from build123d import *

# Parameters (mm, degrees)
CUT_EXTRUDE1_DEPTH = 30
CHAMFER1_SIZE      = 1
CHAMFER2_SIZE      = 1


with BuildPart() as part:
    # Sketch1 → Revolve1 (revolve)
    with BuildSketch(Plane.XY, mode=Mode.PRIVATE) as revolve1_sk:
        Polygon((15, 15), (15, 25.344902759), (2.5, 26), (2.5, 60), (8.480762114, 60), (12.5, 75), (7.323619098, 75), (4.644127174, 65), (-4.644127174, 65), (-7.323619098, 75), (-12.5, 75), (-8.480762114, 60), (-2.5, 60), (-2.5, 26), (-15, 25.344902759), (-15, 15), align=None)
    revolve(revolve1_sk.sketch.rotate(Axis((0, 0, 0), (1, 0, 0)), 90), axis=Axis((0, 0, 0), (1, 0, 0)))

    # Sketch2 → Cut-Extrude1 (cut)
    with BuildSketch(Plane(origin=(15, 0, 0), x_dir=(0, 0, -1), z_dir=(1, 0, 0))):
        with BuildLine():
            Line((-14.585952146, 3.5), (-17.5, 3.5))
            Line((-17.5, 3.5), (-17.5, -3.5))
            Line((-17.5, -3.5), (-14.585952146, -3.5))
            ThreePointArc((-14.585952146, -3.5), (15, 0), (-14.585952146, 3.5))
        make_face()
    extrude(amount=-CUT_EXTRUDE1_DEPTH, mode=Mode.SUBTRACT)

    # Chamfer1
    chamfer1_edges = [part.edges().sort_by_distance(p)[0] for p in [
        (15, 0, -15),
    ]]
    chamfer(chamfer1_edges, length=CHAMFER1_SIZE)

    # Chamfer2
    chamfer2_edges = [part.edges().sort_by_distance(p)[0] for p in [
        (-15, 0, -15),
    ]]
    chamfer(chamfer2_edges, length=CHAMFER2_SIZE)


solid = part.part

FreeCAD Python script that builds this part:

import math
import FreeCAD as App
import Part
import Sketcher
from FreeCAD import Vector
Q = App.Units.Quantity


def edges_at(feature, points):
    """Names of the edges that pass closest to the given points."""
    edges = feature.Shape.Edges
    near = lambda p: min(range(len(edges)), key=lambda i: edges[i].distToShape(Part.Vertex(*p))[0])
    return sorted({f"Edge{near(p) + 1}" for p in points})


def add_polygon(sketch, points):
    """Adds a closed chain of lines whose ends are joined by coincident constraints."""
    first, n = sketch.GeometryCount, len(points)
    for a, b in zip(points, points[1:] + points[:1]):
        sketch.addGeometry(Part.LineSegment(App.Vector(*a, 0), App.Vector(*b, 0)), False)
    for i in range(n):
        sketch.addConstraint(Sketcher.Constraint("Coincident", first + i, 2, first + (i + 1) % n, 1))

doc = App.newDocument("Part")
params = doc.addObject("Spreadsheet::Sheet", "Params")
for row, (alias, value) in enumerate([
    ("sketch1_width", "30 mm"),
    ("sketch1_height", "34 mm"),
    ("revolution_angle", "360 deg"),
    ("sketch2_radius", "15 mm"),
    ("sketch2_width", "7 mm"),
    ("pocket1_length", "30 mm"),
    ("chamfer_size", "1 mm"),
    ("chamfer2_size", "1 mm"),
], start=1):
    params.set(f"A{row}", alias)
    params.set(f"B{row}", "=" + value)
    params.setAlias(f"B{row}", alias)

body = doc.addObject("PartDesign::Body", "Body")

# Sketch on XY plane
sketch1 = body.newObject("Sketcher::SketchObject", "Sketch")
sketch1.AttachmentSupport = (doc.getObject("XY_Plane"), [""])
sketch1.MapMode = "FlatFace"
add_polygon(sketch1, [(15, 15), (15, 25), (2, 26), (2, 60), (8, 60), (12, 75), (7, 75), (5, 65), (-5, 65), (-7, 75), (-12, 75), (-8, 60), (-2, 60), (-2, 26), (-15, 25), (-15, 15)])  # lines 0-15
sketch1.addConstraint(Sketcher.Constraint("Vertical", 0))
sketch1.addConstraint(Sketcher.Constraint("Vertical", 2))
sketch1.addConstraint(Sketcher.Constraint("Horizontal", 3))
sketch1.addConstraint(Sketcher.Constraint("Horizontal", 5))
sketch1.addConstraint(Sketcher.Constraint("Horizontal", 7))
sketch1.addConstraint(Sketcher.Constraint("Horizontal", 9))
sketch1.addConstraint(Sketcher.Constraint("Horizontal", 11))
sketch1.addConstraint(Sketcher.Constraint("Vertical", 12))
sketch1.addConstraint(Sketcher.Constraint("Vertical", 14))
sketch1.addConstraint(Sketcher.Constraint("Horizontal", 15))
sketch1.addConstraint(Sketcher.Constraint("Symmetric", 5, 2, 8, 2, -2))
sketch1.addConstraint(Sketcher.Constraint("Symmetric", 3, 2, 10, 2, -2))
sketch1.addConstraint(Sketcher.Constraint("Symmetric", 1, 2, 12, 2, -2))
sketch1.addConstraint(Sketcher.Constraint("Symmetric", 0, 2, 13, 2, -2))
sketch1.addConstraint(Sketcher.Constraint("Parallel", 4, 6))
sketch1.addConstraint(Sketcher.Constraint("Parallel", 8, 10))
sketch1.addConstraint(Sketcher.Constraint("Equal", 5, 9))
sketch1.addConstraint(Sketcher.Constraint("DistanceX", 15, 1, 15, 2, Q("30 mm")))
sketch1.addConstraint(Sketcher.Constraint("DistanceY", 2, 1, 2, 2, Q("34 mm")))
sketch1.addConstraint(Sketcher.Constraint("Angle", 1, Q("177 deg")))
sketch1.addConstraint(Sketcher.Constraint("Angle", 4, Q("75 deg")))
sketch1.addConstraint(Sketcher.Constraint("DistanceY", -1, 1, 1, 2, Q("26 mm")))
sketch1.addConstraint(Sketcher.Constraint("DistanceY", -1, 1, 4, 2, Q("75 mm")))
sketch1.addConstraint(Sketcher.Constraint("DistanceY", -1, 1, 6, 2, Q("65 mm")))
sketch1.addConstraint(Sketcher.Constraint("DistanceY", -1, 1, 14, 2, Q("15 mm")))
sketch1.addConstraint(Sketcher.Constraint("DistanceX", 2, 2, 4, 2, Q("10 mm")))
sketch1.addConstraint(Sketcher.Constraint("DistanceX", 9, 2, 2, 2, Q("15 mm")))
sketch1.addConstraint(Sketcher.Constraint("DistanceX", 5, 2, 5, 1, Q("5.176381 mm")))
sketch1.setExpression("Constraints[33]", "Params.sketch1_width")
sketch1.setExpression("Constraints[34]", "Params.sketch1_height")
revolution = body.newObject("PartDesign::Revolution", "Revolution")
revolution.Profile = sketch1
revolution.ReferenceAxis = (sketch1, ["H_Axis"])
revolution.setExpression("Angle", "Params.revolution_angle")

# Sketch on YZ plane
sketch2 = body.newObject("Sketcher::SketchObject", "Sketch001")
sketch2.AttachmentSupport = (doc.getObject("YZ_Plane"), [""])
sketch2.MapMode = "FlatFace"
sketch2.AttachmentOffset = App.Placement(Vector(0, 0, 15), App.Rotation())
sketch2.addGeometry(Part.LineSegment(Vector(3.5, 14.6, 0), Vector(3.5, 17.5, 0)), False)
sketch2.addGeometry(Part.LineSegment(Vector(3.5, 17.5, 0), Vector(-3.5, 17.5, 0)), False)
sketch2.addGeometry(Part.LineSegment(Vector(-3.5, 17.5, 0), Vector(-3.5, 14.6, 0)), False)
sketch2.addGeometry(Part.ArcOfCircle(Part.Circle(Vector(0, 0, 0), Vector(0, 0, 1), 15), math.radians(103), math.radians(437)), False)
sketch2.addConstraint(Sketcher.Constraint("Coincident", 0, 2, 1, 1))
sketch2.addConstraint(Sketcher.Constraint("Coincident", 1, 2, 2, 1))
sketch2.addConstraint(Sketcher.Constraint("Coincident", 2, 2, 3, 1))
sketch2.addConstraint(Sketcher.Constraint("Coincident", 3, 2, 0, 1))
sketch2.addConstraint(Sketcher.Constraint("Vertical", 0))
sketch2.addConstraint(Sketcher.Constraint("Horizontal", 1))
sketch2.addConstraint(Sketcher.Constraint("Vertical", 2))
sketch2.addConstraint(Sketcher.Constraint("Coincident", 3, 3, -1, 1))
sketch2.addConstraint(Sketcher.Constraint("Horizontal", 2, 2, 3, 2))
sketch2.addConstraint(Sketcher.Constraint("Radius", 3, Q("15 mm")))
sketch2.addConstraint(Sketcher.Constraint("DistanceX", 1, 2, 1, 1, Q("7 mm")))
sketch2.addConstraint(Sketcher.Constraint("DistanceY", -1, 1, 0, 2, Q("17.5 mm")))
sketch2.setExpression("Constraints[9]", "Params.sketch2_radius")
sketch2.setExpression("Constraints[10]", "Params.sketch2_width")
pocket1 = body.newObject("PartDesign::Pocket", "Pocket")
pocket1.Profile = sketch2
pocket1.setExpression("Length", "Params.pocket1_length")
doc.recompute()

chamfer = body.newObject("PartDesign::Chamfer", "Chamfer")
chamfer.Base = (pocket1, edges_at(pocket1, [(15, 0, -15)]))
chamfer.setExpression("Size", "Params.chamfer_size")
doc.recompute()

chamfer2 = body.newObject("PartDesign::Chamfer", "Chamfer001")
chamfer2.Base = (chamfer, edges_at(chamfer, [(-15, 0, -15)]))
chamfer2.setExpression("Size", "Params.chamfer2_size")

doc.recompute()
